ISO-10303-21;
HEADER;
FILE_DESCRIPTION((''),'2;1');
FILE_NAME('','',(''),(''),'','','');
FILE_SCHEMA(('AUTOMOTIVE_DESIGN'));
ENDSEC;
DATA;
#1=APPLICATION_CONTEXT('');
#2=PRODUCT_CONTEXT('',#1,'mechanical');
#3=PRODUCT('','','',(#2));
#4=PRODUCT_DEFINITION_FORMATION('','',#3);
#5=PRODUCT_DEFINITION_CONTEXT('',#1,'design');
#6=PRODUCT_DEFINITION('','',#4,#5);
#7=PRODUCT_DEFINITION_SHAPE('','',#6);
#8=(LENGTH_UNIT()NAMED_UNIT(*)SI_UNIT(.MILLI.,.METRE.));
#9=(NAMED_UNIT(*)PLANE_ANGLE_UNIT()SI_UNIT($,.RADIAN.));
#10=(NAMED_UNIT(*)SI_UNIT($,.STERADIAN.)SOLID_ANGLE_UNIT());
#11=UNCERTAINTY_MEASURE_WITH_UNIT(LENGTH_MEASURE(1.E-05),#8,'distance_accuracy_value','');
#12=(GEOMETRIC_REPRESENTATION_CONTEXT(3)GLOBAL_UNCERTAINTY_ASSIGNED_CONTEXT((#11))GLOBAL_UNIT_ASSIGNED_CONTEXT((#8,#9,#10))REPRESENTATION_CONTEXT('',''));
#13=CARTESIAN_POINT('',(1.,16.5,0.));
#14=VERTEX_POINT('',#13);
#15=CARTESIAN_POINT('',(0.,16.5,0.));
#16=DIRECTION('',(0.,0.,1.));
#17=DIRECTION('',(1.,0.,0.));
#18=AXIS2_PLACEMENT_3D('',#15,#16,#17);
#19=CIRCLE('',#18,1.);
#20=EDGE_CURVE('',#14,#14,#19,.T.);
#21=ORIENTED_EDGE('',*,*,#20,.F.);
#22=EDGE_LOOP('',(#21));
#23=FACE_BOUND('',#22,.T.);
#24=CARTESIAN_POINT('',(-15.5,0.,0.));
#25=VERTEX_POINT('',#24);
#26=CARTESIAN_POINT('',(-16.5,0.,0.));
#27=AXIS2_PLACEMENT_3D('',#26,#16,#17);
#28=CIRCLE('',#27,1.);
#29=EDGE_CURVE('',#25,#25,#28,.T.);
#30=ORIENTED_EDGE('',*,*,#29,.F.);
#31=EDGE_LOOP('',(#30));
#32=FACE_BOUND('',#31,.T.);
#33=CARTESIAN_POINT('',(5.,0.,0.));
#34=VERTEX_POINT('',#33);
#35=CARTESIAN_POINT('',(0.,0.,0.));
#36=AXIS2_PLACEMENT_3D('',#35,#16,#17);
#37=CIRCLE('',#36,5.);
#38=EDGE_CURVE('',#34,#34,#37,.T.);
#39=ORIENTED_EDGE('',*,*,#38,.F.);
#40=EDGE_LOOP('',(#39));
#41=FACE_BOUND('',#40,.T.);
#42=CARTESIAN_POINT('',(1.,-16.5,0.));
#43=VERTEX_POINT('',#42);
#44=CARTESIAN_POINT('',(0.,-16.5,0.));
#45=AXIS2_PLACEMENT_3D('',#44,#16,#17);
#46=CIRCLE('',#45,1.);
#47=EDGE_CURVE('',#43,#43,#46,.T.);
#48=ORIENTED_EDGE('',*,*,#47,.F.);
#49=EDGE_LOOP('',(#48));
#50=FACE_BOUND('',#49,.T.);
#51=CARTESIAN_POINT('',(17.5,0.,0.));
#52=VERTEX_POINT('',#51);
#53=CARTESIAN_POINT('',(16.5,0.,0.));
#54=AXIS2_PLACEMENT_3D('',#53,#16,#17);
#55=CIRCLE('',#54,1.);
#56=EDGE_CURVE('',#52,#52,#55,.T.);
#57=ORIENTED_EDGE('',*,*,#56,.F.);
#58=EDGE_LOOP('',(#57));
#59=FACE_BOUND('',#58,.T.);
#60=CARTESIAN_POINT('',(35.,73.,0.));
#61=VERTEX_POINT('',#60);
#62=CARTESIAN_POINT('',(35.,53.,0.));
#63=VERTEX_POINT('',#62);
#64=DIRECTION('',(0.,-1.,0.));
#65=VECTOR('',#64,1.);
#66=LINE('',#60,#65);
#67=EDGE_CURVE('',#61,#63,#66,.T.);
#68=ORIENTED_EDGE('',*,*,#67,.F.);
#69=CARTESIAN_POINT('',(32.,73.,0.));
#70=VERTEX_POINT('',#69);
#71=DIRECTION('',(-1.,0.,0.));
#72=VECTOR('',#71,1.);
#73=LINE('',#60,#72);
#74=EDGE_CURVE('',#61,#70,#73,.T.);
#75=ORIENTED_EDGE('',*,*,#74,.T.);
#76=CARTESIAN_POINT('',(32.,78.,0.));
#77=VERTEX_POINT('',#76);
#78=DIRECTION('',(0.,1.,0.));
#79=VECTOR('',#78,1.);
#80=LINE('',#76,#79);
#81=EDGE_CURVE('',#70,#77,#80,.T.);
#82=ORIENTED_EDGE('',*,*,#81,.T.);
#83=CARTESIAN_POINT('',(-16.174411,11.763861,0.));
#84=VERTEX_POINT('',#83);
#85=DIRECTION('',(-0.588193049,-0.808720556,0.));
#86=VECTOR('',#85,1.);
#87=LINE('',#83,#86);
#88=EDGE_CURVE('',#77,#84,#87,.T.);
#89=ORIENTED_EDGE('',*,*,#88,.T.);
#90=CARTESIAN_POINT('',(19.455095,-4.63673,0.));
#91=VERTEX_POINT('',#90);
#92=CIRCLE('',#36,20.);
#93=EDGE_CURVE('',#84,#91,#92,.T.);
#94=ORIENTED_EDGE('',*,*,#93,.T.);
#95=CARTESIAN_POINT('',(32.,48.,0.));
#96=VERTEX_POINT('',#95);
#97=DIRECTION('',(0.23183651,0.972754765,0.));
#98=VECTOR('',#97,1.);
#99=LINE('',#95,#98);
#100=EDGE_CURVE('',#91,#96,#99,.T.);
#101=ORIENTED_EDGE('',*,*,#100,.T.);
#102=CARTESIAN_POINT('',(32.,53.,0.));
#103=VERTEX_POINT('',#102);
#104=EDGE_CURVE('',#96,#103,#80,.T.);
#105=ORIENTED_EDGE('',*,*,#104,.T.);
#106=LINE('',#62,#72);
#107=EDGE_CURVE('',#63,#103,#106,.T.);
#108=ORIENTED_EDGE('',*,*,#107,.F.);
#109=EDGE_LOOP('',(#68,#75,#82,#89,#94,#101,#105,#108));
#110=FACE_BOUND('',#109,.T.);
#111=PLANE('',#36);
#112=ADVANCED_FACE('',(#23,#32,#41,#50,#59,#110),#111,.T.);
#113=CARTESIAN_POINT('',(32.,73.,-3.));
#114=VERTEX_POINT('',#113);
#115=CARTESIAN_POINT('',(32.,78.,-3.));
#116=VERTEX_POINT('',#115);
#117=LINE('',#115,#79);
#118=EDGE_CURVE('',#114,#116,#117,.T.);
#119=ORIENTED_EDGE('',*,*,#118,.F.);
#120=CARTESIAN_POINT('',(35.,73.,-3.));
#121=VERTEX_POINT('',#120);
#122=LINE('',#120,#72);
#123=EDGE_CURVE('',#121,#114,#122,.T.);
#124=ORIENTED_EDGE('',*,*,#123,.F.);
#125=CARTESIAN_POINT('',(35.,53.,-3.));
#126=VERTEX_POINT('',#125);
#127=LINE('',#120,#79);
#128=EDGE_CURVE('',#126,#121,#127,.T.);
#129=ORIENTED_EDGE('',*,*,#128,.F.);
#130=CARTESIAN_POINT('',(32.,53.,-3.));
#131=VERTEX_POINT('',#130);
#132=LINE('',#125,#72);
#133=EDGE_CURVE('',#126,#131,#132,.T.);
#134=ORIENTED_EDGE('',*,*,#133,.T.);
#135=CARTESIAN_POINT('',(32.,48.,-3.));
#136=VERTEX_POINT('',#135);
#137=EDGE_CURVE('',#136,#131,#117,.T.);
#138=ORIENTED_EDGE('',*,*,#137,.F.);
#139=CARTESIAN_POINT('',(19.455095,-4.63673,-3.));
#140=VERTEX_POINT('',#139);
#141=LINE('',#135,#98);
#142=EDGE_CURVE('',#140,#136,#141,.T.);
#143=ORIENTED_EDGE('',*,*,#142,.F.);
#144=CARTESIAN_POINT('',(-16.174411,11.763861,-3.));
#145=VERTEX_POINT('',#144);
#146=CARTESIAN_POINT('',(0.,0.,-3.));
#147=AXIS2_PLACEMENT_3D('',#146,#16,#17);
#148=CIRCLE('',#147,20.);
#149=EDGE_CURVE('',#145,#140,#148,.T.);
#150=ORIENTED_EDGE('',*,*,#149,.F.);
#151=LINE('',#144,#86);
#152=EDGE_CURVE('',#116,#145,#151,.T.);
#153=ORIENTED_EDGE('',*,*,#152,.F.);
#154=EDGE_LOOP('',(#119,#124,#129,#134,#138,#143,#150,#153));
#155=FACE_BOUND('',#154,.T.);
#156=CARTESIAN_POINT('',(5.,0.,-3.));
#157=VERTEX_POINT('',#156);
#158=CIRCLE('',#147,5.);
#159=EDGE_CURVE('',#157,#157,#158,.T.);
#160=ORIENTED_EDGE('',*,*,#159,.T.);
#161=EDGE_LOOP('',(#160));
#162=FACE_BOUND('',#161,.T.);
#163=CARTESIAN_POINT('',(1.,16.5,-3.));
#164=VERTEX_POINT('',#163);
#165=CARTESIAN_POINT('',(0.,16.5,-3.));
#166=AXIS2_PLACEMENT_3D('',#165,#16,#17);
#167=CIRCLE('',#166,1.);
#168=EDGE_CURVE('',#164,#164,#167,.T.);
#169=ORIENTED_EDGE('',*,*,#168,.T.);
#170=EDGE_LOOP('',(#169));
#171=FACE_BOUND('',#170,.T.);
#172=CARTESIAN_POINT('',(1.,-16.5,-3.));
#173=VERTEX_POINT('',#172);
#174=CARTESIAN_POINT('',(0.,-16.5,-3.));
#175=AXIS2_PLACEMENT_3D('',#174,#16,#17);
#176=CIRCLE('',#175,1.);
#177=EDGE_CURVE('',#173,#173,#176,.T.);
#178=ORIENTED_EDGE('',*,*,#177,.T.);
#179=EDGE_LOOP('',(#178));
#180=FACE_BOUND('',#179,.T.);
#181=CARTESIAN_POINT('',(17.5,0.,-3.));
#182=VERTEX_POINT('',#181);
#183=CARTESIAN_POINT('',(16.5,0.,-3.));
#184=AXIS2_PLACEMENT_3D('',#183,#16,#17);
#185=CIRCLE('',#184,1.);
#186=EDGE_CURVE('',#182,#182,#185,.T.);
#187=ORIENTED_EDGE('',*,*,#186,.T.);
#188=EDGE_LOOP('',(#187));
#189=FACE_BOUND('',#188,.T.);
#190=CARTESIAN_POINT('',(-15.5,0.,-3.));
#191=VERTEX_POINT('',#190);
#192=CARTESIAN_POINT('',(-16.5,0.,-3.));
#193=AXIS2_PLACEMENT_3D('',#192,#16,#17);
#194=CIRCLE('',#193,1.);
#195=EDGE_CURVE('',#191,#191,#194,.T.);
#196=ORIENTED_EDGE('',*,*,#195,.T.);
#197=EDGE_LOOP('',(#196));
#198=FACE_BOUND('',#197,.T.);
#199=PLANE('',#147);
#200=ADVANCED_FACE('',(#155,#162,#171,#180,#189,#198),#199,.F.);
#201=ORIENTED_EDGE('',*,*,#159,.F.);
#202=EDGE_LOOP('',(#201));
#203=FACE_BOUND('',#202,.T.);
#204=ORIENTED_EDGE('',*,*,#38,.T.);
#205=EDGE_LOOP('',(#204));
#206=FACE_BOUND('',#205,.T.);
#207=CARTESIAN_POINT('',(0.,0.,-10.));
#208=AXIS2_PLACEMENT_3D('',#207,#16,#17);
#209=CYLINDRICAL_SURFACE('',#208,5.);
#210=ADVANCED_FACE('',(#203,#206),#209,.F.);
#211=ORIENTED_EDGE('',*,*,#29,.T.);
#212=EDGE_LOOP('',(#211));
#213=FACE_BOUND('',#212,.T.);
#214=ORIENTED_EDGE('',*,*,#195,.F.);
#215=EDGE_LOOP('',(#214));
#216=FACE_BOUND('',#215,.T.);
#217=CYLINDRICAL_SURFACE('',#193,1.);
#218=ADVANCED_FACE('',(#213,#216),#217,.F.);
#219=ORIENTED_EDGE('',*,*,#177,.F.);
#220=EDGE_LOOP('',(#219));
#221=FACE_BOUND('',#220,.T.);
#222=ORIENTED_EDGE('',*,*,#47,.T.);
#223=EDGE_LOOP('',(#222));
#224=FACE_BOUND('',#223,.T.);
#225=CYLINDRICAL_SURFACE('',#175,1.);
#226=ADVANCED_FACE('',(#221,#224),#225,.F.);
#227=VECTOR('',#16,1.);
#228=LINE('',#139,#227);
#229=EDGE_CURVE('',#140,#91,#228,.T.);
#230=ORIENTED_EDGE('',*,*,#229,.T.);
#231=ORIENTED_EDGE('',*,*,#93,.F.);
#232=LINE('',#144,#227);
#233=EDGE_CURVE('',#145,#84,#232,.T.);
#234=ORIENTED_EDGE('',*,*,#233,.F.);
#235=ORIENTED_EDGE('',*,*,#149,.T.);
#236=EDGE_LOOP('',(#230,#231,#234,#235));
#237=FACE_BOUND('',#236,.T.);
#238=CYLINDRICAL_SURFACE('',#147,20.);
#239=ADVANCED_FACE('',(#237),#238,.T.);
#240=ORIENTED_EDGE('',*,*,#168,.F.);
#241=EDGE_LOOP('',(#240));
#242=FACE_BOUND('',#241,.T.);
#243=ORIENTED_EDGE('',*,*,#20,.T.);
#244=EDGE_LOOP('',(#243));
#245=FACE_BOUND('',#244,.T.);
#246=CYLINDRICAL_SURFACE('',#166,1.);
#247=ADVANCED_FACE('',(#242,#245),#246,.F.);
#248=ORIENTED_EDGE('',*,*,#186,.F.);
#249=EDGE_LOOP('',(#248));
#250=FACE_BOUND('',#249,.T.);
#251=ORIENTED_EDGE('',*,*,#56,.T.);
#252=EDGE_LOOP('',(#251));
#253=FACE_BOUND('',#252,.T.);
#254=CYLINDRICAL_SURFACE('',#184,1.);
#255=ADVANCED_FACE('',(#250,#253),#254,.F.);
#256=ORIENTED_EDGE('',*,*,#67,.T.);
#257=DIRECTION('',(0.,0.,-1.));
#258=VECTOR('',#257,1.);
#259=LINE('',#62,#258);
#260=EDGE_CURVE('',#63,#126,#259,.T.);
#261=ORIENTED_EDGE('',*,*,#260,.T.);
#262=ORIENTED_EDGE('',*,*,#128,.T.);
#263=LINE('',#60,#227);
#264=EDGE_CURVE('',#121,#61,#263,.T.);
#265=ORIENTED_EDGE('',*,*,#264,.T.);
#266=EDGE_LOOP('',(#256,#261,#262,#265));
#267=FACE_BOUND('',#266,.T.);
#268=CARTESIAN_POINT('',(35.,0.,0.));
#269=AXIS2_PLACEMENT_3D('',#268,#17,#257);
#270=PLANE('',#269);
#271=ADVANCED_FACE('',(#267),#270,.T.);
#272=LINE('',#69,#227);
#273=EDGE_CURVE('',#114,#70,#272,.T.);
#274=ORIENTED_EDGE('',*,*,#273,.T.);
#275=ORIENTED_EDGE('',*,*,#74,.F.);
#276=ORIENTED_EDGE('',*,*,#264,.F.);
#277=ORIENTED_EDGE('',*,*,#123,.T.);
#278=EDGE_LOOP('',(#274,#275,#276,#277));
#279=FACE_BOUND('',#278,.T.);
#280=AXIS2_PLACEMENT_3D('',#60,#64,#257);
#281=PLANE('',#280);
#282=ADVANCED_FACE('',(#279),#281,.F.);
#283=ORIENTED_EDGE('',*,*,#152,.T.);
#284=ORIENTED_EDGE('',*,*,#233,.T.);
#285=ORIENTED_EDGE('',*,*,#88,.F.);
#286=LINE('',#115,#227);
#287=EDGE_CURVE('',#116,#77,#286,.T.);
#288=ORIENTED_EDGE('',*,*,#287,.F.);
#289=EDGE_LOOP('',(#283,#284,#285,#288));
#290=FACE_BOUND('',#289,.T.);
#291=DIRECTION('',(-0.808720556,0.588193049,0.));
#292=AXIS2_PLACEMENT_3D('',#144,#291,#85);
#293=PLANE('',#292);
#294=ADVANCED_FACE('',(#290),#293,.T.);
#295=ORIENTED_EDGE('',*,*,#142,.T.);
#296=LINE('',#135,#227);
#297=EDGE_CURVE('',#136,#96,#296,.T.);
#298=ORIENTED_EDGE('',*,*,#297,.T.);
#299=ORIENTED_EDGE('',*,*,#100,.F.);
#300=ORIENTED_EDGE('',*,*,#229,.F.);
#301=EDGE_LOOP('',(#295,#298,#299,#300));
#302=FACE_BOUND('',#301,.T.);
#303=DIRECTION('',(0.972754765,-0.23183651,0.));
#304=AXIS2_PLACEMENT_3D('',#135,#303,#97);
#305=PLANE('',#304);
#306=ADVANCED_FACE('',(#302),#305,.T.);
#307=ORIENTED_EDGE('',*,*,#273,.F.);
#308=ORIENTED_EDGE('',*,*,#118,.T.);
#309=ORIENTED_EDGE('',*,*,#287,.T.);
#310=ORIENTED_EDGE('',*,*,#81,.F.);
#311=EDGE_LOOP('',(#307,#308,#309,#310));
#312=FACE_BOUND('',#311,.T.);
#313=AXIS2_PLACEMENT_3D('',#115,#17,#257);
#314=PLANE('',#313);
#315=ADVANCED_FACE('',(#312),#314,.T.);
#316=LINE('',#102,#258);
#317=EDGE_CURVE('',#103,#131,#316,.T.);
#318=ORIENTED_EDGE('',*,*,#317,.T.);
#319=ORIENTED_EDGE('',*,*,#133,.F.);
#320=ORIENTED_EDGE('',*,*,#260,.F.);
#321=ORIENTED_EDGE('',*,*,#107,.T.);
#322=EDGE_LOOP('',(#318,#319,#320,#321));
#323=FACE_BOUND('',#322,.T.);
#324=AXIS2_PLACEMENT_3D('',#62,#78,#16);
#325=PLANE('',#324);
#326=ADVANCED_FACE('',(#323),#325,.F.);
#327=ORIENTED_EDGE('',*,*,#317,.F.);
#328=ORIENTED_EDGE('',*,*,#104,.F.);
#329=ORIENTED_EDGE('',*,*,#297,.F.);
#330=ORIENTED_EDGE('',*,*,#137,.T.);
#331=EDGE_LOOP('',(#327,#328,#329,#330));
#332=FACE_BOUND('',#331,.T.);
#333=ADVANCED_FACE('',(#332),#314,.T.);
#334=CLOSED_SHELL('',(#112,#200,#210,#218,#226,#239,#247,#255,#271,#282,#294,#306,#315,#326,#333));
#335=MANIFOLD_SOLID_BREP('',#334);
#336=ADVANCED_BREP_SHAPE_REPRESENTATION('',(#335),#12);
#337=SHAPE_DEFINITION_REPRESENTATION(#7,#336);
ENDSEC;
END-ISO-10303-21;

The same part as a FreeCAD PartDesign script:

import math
import FreeCAD as App
import Part
import Sketcher
from FreeCAD import Vector
Q = App.Units.Quantity

doc = App.newDocument("Part")
body = doc.addObject("PartDesign::Body", "Body")

sketch1 = body.newObject("Sketcher::SketchObject", "Sketch")
sketch1.AttachmentSupport = (doc.getObject("XY_Plane"), [""])
sketch1.MapMode = "FlatFace"
sketch1.addGeometry(Part.LineSegment(Vector(32, 78, 0), Vector(-16.174411, 11.763861, 0)), False)
sketch1.addGeometry(Part.ArcOfCircle(Part.Circle(Vector(0, 0, 0), Vector(0, 0, 1), 20), math.radians(143.971114), math.radians(346.594781)), False)
sketch1.addGeometry(Part.LineSegment(Vector(19.455095, -4.63673, 0), Vector(32, 48, 0)), False)
sketch1.addGeometry(Part.LineSegment(Vector(32, 48, 0), Vector(32, 78, 0)), False)
sketch1.addGeometry(Part.Circle(Vector(16.5, 0, 0), Vector(0, 0, 1), 1), False)
sketch1.addGeometry(Part.Circle(Vector(0, -16.5, 0), Vector(0, 0, 1), 1), False)
sketch1.addGeometry(Part.Circle(Vector(-16.5, 0, 0), Vector(0, 0, 1), 1), False)
sketch1.addGeometry(Part.Circle(Vector(0, 16.5, 0), Vector(0, 0, 1), 1), False)
sketch1.addConstraint(Sketcher.Constraint("Tangent", 0, 2, 1, 1))
sketch1.addConstraint(Sketcher.Constraint("Tangent", 1, 2, 2, 1))
sketch1.addConstraint(Sketcher.Constraint("Coincident", 2, 2, 3, 1))
sketch1.addConstraint(Sketcher.Constraint("Coincident", 3, 2, 0, 1))
sketch1.addConstraint(Sketcher.Constraint("Vertical", 3))
sketch1.addConstraint(Sketcher.Constraint("Coincident", 1, 3, -1, 1))
sketch1.addConstraint(Sketcher.Constraint("Equal", 4, 5))
sketch1.addConstraint(Sketcher.Constraint("Equal", 5, 6))
sketch1.addConstraint(Sketcher.Constraint("Equal", 6, 7))
sketch1.addConstraint(Sketcher.Constraint("Symmetric", 4, 3, 6, 3, -1, 1))
sketch1.addConstraint(Sketcher.Constraint("Symmetric", 5, 3, 7, 3, -1, 1))
sketch1.addConstraint(Sketcher.Constraint("PointOnObject", 4, 3, -1))
sketch1.addConstraint(Sketcher.Constraint("PointOnObject", 5, 3, -2))
sketch1.addConstraint(Sketcher.Constraint("Diameter", 4, Q("2 mm")))
sketch1.addConstraint(Sketcher.Constraint("Radius", 1, Q("20 mm")))
sketch1.addConstraint(Sketcher.Constraint("DistanceY", 3, 1, 3, 2, Q("30 mm")))
sketch1.addConstraint(Sketcher.Constraint("DistanceX", -1, 1, 2, 2, Q("32 mm")))
sketch1.addConstraint(Sketcher.Constraint("DistanceY", -1, 1, 2, 2, Q("48 mm")))
sketch1.addConstraint(Sketcher.Constraint("DistanceX", 6, 3, 4, 3, Q("33 mm")))
sketch1.addConstraint(Sketcher.Constraint("DistanceY", 5, 3, 7, 3, Q("33 mm")))
pad1 = body.newObject("PartDesign::Pad", "Pad")
pad1.Profile = sketch1
pad1.Length = 3
pad1.Reversed = True

sketch2 = body.newObject("Sketcher::SketchObject", "Sketch001")
sketch2.AttachmentSupport = (doc.getObject("XY_Plane"), [""])
sketch2.MapMode = "FlatFace"
sketch2.addGeometry(Part.Circle(Vector(0, 0, 0), Vector(0, 0, 1), 5), False)
sketch2.addConstraint(Sketcher.Constraint("Coincident", 0, 3, -1, 1))
sketch2.addConstraint(Sketcher.Constraint("Diameter", 0, Q("10 mm")))
pocket1 = body.newObject("PartDesign::Pocket", "Pocket")
pocket1.Profile = sketch2
pocket1.Length = 10

sketch3 = body.newObject("Sketcher::SketchObject", "Sketch002")
sketch3.AttachmentSupport = (doc.getObject("YZ_Plane"), [""])
sketch3.MapMode = "FlatFace"
sketch3.AttachmentOffset = App.Placement(Vector(0, 0, 32), App.Rotation())
sketch3.addGeometry(Part.LineSegment(Vector(73, 0, 0), Vector(53, 0, 0)), False)
sketch3.addGeometry(Part.LineSegment(Vector(53, 0, 0), Vector(53, -3, 0)), False)
sketch3.addGeometry(Part.LineSegment(Vector(53, -3, 0), Vector(73, -3, 0)), False)
sketch3.addGeometry(Part.LineSegment(Vector(73, -3, 0), Vector(73, 0, 0)), False)
sketch3.addConstraint(Sketcher.Constraint("Coincident", 0, 2, 1, 1))
sketch3.addConstraint(Sketcher.Constraint("Coincident", 1, 2, 2, 1))
sketch3.addConstraint(Sketcher.Constraint("Coincident", 2, 2, 3, 1))
sketch3.addConstraint(Sketcher.Constraint("Coincident", 3, 2, 0, 1))
sketch3.addConstraint(Sketcher.Constraint("Horizontal", 0))
sketch3.addConstraint(Sketcher.Constraint("Vertical", 1))
sketch3.addConstraint(Sketcher.Constraint("Horizontal", 2))
sketch3.addConstraint(Sketcher.Constraint("Vertical", 3))
sketch3.addConstraint(Sketcher.Constraint("PointOnObject", 0, 2, -1))
sketch3.addConstraint(Sketcher.Constraint("DistanceX", 0, 2, 0, 1, Q("20 mm")))
sketch3.addConstraint(Sketcher.Constraint("DistanceY", 1, 2, 1, 1, Q("3 mm")))
sketch3.addConstraint(Sketcher.Constraint("DistanceX", -1, 1, 0, 2, Q("53 mm")))
pad2 = body.newObject("PartDesign::Pad", "Pad001")
pad2.Profile = sketch3
pad2.Length = 3

doc.recompute()
